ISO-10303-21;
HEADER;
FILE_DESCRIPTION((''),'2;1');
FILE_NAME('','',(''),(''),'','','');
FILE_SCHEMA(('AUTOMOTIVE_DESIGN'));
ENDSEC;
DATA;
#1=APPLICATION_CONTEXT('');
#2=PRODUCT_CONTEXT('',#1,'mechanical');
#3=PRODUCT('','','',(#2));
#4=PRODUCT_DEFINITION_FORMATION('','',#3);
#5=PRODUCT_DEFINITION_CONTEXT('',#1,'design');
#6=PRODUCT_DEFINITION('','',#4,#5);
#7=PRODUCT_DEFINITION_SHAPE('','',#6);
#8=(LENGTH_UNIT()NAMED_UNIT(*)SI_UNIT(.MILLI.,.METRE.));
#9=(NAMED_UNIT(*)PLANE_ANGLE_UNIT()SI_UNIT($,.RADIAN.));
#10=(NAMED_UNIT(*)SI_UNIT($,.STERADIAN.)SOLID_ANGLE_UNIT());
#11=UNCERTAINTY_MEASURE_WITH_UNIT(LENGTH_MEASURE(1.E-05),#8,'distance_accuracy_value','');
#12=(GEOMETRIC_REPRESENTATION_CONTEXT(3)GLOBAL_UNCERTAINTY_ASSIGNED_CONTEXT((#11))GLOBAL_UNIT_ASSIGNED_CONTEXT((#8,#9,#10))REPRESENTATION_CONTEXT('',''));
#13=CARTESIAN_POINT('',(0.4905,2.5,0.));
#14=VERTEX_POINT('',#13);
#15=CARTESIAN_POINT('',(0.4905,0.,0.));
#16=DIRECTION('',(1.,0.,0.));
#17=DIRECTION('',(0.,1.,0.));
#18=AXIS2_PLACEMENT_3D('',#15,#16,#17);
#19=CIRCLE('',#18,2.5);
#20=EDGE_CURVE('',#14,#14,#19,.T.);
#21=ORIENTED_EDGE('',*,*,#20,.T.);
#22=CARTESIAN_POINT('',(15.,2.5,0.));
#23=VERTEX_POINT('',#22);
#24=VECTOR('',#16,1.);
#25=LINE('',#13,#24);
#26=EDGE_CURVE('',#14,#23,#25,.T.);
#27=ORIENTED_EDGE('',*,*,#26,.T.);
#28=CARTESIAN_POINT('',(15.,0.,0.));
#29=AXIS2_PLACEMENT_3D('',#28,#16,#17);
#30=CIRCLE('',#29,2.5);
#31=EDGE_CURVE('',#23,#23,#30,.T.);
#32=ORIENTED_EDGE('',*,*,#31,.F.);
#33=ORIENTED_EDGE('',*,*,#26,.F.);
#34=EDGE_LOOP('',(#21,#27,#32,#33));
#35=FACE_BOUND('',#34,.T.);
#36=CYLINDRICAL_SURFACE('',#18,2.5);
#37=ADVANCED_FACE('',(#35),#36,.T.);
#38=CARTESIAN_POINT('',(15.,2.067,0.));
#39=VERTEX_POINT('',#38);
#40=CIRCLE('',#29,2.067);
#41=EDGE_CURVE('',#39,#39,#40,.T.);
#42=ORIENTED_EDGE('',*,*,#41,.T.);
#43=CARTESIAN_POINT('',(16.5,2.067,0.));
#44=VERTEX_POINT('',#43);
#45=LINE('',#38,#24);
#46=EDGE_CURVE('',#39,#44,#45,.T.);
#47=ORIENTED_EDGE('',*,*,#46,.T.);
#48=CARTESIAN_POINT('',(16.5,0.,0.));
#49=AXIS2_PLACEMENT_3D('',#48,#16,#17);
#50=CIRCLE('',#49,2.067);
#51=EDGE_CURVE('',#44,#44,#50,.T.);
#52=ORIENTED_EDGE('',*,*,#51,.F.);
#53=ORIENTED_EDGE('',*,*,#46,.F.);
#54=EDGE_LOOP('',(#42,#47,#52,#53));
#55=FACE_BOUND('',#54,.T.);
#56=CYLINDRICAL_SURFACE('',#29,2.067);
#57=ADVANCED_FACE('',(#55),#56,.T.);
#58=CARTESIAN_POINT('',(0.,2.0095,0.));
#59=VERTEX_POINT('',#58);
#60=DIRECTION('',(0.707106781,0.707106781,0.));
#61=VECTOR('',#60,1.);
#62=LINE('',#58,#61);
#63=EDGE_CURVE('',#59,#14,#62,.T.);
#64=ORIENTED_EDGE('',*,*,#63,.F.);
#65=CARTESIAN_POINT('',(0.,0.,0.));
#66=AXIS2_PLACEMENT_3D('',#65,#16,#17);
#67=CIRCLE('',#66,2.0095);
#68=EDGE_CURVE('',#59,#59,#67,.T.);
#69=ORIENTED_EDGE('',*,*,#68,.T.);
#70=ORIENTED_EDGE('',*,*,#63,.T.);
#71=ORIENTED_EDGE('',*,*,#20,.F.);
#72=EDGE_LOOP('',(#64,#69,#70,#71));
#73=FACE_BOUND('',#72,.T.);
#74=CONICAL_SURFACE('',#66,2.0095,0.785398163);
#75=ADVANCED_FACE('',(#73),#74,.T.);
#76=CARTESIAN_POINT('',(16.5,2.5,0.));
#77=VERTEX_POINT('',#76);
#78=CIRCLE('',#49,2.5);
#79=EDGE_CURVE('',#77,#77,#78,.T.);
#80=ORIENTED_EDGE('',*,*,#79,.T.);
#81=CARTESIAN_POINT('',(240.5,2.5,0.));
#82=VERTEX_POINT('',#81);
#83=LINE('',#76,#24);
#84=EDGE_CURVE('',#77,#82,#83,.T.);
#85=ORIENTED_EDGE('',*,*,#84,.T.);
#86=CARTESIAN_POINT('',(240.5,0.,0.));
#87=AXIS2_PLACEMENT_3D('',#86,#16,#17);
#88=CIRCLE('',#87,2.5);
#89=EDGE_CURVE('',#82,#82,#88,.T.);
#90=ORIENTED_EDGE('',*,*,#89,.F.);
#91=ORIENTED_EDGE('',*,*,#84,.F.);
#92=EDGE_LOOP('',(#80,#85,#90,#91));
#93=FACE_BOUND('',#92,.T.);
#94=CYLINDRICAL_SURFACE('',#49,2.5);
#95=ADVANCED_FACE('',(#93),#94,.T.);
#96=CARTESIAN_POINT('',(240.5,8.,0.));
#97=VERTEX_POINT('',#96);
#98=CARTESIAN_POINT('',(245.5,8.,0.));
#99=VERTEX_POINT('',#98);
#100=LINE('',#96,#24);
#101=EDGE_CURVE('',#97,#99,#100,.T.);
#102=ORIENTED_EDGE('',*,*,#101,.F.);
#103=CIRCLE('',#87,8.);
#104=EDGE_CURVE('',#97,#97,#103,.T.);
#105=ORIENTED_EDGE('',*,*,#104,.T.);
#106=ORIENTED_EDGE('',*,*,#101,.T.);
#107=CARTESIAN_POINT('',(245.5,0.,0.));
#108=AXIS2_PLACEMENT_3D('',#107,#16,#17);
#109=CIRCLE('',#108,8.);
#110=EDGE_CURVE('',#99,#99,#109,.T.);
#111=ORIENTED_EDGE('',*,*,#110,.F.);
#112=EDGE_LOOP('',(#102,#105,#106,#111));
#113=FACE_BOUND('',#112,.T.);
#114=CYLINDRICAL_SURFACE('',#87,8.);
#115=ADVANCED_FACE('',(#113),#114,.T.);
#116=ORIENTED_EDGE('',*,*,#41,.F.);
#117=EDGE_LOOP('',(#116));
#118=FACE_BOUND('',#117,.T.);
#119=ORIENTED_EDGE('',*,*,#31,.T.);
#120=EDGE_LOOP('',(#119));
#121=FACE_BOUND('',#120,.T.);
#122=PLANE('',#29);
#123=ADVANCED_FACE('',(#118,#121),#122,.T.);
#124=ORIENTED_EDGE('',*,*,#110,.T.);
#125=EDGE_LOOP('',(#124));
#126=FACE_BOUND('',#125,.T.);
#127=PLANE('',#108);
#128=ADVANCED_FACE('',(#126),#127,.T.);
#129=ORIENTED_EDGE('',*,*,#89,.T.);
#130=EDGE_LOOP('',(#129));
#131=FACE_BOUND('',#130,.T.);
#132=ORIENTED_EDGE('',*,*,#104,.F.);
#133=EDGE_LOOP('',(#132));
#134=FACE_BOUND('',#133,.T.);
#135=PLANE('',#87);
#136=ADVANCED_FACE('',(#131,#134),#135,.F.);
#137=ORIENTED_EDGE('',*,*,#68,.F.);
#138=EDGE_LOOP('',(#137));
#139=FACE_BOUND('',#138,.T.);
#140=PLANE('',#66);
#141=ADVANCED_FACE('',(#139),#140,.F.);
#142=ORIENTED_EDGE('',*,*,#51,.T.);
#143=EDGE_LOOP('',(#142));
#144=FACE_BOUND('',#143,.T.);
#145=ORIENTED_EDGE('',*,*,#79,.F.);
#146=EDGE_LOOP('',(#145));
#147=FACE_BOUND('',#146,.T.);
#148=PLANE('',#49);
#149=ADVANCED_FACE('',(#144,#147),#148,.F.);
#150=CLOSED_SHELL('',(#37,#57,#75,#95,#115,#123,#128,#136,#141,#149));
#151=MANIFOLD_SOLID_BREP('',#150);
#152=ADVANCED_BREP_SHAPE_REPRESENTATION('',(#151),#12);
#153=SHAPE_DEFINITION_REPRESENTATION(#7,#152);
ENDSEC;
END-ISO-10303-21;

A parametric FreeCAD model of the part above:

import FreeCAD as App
import Part
import Sketcher

V = App.Vector
Q = App.Units.Quantity


def add_polygon(sketch, points):
    """Adds a closed chain of lines whose ends are joined by coincident constraints."""
    first, n = sketch.GeometryCount, len(points)
    for a, b in zip(points, points[1:] + points[:1]):
        sketch.addGeometry(Part.LineSegment(App.Vector(*a, 0), App.Vector(*b, 0)), False)
    for i in range(n):
        sketch.addConstraint(Sketcher.Constraint("Coincident", first + i, 2, first + (i + 1) % n, 1))

doc = App.newDocument("Part")
body = doc.addObject("PartDesign::Body", "Body")

sketch1 = body.newObject("Sketcher::SketchObject", "Sketch")
sketch1.AttachmentSupport = (doc.getObject("XY_Plane"), [""])
sketch1.MapMode = "FlatFace"
add_polygon(sketch1, [(0, 0), (245.5, 0), (245.5, 8), (240.5, 8), (240.5, 2.5), (16.5, 2.5), (16.5, 2.07), (15, 2.07), (15, 2.5), (0.49, 2.5), (0, 2.01)])
sketch1.addConstraint(Sketcher.Constraint("Horizontal", 0))
sketch1.addConstraint(Sketcher.Constraint("Vertical", 1))
sketch1.addConstraint(Sketcher.Constraint("Horizontal", 2))
sketch1.addConstraint(Sketcher.Constraint("Vertical", 3))
sketch1.addConstraint(Sketcher.Constraint("Horizontal", 4))
sketch1.addConstraint(Sketcher.Constraint("Vertical", 5))
sketch1.addConstraint(Sketcher.Constraint("Horizontal", 6))
sketch1.addConstraint(Sketcher.Constraint("Vertical", 7))
sketch1.addConstraint(Sketcher.Constraint("Horizontal", 8))
sketch1.addConstraint(Sketcher.Constraint("Vertical", 10))
sketch1.addConstraint(Sketcher.Constraint("Coincident", 10, 2, -1, 1))
sketch1.addConstraint(Sketcher.Constraint("Horizontal", 4, 2, 7, 2))
sketch1.addConstraint(Sketcher.Constraint("DistanceX", 2, 2, 2, 1, 5.0))
sketch1.addConstraint(Sketcher.Constraint("DistanceX", 4, 2, 4, 1, 224.0))
sketch1.addConstraint(Sketcher.Constraint("DistanceY", 1, 1, 1, 2, 8.0))
sketch1.addConstraint(Sketcher.Constraint("Angle", 9, Q("-135 deg")))
sketch1.addConstraint(Sketcher.Constraint("DistanceX", 0, 1, 0, 2, 245.5))
sketch1.addConstraint(Sketcher.Constraint("DistanceX", 6, 2, 6, 1, 1.5))
sketch1.addConstraint(Sketcher.Constraint("DistanceY", 3, 2, 3, 1, 5.5))
sketch1.addConstraint(Sketcher.Constraint("DistanceY", 5, 2, 5, 1, 0.433))
sketch1.addConstraint(Sketcher.Constraint("DistanceX", 8, 2, 8, 1, 14.5095))
revolution = body.newObject("PartDesign::Revolution", "Revolution")
revolution.Profile = sketch1
revolution.ReferenceAxis = (sketch1, ["H_Axis"])
revolution.Angle = 360

doc.recompute()
